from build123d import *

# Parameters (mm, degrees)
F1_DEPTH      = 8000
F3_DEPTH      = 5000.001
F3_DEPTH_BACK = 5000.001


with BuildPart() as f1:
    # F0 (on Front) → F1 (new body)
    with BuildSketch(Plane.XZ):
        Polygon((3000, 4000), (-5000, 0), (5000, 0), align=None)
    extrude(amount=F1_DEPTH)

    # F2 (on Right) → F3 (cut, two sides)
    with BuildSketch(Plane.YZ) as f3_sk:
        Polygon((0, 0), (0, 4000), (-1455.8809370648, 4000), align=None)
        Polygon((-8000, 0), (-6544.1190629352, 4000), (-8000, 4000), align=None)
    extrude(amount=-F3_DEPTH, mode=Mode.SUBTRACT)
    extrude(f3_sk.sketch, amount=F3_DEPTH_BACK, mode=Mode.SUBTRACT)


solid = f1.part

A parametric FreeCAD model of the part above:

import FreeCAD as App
import Part
import Sketcher

V = App.Vector
Q = App.Units.Quantity


def add_polygon(sketch, points):
    """Adds a closed chain of lines whose ends are joined by coincident constraints."""
    first, n = sketch.GeometryCount, len(points)
    for a, b in zip(points, points[1:] + points[:1]):
        sketch.addGeometry(Part.LineSegment(App.Vector(*a, 0), App.Vector(*b, 0)), False)
    for i in range(n):
        sketch.addConstraint(Sketcher.Constraint("Coincident", first + i, 2, first + (i + 1) % n, 1))

doc = App.newDocument("Part")
body = doc.addObject("PartDesign::Body", "Body")

# Sketch on XZ plane
sketch1 = body.newObject("Sketcher::SketchObject", "Sketch")
sketch1.AttachmentSupport = (doc.getObject("XZ_Plane"), [""])
sketch1.MapMode = "FlatFace"
add_polygon(sketch1, [(3000, 4000), (-5000, 0), (5000, 0)])  # lines 0-2
sketch1.addConstraint(Sketcher.Constraint("Horizontal", 1))
sketch1.addConstraint(Sketcher.Constraint("Symmetric", 0, 2, 1, 2, -1, 1))
sketch1.addConstraint(Sketcher.Constraint("Perpendicular", 0, 2))
sketch1.addConstraint(Sketcher.Constraint("DistanceX", 1, 1, 1, 2, Q("10000 mm")))
sketch1.addConstraint(Sketcher.Constraint("DistanceX", -1, 1, 2, 2, Q("3000 mm")))
pad1 = body.newObject("PartDesign::Pad", "Pad")
pad1.Profile = sketch1
pad1.Length = 8000

# Sketch on YZ plane
sketch2 = body.newObject("Sketcher::SketchObject", "Sketch001")
sketch2.AttachmentSupport = (doc.getObject("YZ_Plane"), [""])
sketch2.MapMode = "FlatFace"
add_polygon(sketch2, [(0, 0), (0, 4000), (-1456, 4000)])  # lines 0-2
add_polygon(sketch2, [(-8000, 0), (-6544, 4000), (-8000, 4000)])  # lines 3-5
sketch2.addConstraint(Sketcher.Constraint("Vertical", 0))
sketch2.addConstraint(Sketcher.Constraint("Horizontal", 1))
sketch2.addConstraint(Sketcher.Constraint("Horizontal", 4))
sketch2.addConstraint(Sketcher.Constraint("Vertical", 5))
sketch2.addConstraint(Sketcher.Constraint("Coincident", 2, 2, -1, 1))
sketch2.addConstraint(Sketcher.Constraint("PointOnObject", 5, 2, -1))
sketch2.addConstraint(Sketcher.Constraint("Horizontal", 1, 2, 3, 2))
sketch2.addConstraint(Sketcher.Constraint("Equal", 1, 4))
sketch2.addConstraint(Sketcher.Constraint("DistanceY", 0, 1, 0, 2, Q("4000 mm")))
sketch2.addConstraint(Sketcher.Constraint("Angle", 2, Q("-70 deg")))
sketch2.addConstraint(Sketcher.Constraint("DistanceX", 4, 2, -1, 1, Q("8000 mm")))
pocket1 = body.newObject("PartDesign::Pocket", "Pocket")
pocket1.Profile = sketch2
pocket1.Type = "ThroughAll"
pocket1.Midplane = True

doc.recompute()
